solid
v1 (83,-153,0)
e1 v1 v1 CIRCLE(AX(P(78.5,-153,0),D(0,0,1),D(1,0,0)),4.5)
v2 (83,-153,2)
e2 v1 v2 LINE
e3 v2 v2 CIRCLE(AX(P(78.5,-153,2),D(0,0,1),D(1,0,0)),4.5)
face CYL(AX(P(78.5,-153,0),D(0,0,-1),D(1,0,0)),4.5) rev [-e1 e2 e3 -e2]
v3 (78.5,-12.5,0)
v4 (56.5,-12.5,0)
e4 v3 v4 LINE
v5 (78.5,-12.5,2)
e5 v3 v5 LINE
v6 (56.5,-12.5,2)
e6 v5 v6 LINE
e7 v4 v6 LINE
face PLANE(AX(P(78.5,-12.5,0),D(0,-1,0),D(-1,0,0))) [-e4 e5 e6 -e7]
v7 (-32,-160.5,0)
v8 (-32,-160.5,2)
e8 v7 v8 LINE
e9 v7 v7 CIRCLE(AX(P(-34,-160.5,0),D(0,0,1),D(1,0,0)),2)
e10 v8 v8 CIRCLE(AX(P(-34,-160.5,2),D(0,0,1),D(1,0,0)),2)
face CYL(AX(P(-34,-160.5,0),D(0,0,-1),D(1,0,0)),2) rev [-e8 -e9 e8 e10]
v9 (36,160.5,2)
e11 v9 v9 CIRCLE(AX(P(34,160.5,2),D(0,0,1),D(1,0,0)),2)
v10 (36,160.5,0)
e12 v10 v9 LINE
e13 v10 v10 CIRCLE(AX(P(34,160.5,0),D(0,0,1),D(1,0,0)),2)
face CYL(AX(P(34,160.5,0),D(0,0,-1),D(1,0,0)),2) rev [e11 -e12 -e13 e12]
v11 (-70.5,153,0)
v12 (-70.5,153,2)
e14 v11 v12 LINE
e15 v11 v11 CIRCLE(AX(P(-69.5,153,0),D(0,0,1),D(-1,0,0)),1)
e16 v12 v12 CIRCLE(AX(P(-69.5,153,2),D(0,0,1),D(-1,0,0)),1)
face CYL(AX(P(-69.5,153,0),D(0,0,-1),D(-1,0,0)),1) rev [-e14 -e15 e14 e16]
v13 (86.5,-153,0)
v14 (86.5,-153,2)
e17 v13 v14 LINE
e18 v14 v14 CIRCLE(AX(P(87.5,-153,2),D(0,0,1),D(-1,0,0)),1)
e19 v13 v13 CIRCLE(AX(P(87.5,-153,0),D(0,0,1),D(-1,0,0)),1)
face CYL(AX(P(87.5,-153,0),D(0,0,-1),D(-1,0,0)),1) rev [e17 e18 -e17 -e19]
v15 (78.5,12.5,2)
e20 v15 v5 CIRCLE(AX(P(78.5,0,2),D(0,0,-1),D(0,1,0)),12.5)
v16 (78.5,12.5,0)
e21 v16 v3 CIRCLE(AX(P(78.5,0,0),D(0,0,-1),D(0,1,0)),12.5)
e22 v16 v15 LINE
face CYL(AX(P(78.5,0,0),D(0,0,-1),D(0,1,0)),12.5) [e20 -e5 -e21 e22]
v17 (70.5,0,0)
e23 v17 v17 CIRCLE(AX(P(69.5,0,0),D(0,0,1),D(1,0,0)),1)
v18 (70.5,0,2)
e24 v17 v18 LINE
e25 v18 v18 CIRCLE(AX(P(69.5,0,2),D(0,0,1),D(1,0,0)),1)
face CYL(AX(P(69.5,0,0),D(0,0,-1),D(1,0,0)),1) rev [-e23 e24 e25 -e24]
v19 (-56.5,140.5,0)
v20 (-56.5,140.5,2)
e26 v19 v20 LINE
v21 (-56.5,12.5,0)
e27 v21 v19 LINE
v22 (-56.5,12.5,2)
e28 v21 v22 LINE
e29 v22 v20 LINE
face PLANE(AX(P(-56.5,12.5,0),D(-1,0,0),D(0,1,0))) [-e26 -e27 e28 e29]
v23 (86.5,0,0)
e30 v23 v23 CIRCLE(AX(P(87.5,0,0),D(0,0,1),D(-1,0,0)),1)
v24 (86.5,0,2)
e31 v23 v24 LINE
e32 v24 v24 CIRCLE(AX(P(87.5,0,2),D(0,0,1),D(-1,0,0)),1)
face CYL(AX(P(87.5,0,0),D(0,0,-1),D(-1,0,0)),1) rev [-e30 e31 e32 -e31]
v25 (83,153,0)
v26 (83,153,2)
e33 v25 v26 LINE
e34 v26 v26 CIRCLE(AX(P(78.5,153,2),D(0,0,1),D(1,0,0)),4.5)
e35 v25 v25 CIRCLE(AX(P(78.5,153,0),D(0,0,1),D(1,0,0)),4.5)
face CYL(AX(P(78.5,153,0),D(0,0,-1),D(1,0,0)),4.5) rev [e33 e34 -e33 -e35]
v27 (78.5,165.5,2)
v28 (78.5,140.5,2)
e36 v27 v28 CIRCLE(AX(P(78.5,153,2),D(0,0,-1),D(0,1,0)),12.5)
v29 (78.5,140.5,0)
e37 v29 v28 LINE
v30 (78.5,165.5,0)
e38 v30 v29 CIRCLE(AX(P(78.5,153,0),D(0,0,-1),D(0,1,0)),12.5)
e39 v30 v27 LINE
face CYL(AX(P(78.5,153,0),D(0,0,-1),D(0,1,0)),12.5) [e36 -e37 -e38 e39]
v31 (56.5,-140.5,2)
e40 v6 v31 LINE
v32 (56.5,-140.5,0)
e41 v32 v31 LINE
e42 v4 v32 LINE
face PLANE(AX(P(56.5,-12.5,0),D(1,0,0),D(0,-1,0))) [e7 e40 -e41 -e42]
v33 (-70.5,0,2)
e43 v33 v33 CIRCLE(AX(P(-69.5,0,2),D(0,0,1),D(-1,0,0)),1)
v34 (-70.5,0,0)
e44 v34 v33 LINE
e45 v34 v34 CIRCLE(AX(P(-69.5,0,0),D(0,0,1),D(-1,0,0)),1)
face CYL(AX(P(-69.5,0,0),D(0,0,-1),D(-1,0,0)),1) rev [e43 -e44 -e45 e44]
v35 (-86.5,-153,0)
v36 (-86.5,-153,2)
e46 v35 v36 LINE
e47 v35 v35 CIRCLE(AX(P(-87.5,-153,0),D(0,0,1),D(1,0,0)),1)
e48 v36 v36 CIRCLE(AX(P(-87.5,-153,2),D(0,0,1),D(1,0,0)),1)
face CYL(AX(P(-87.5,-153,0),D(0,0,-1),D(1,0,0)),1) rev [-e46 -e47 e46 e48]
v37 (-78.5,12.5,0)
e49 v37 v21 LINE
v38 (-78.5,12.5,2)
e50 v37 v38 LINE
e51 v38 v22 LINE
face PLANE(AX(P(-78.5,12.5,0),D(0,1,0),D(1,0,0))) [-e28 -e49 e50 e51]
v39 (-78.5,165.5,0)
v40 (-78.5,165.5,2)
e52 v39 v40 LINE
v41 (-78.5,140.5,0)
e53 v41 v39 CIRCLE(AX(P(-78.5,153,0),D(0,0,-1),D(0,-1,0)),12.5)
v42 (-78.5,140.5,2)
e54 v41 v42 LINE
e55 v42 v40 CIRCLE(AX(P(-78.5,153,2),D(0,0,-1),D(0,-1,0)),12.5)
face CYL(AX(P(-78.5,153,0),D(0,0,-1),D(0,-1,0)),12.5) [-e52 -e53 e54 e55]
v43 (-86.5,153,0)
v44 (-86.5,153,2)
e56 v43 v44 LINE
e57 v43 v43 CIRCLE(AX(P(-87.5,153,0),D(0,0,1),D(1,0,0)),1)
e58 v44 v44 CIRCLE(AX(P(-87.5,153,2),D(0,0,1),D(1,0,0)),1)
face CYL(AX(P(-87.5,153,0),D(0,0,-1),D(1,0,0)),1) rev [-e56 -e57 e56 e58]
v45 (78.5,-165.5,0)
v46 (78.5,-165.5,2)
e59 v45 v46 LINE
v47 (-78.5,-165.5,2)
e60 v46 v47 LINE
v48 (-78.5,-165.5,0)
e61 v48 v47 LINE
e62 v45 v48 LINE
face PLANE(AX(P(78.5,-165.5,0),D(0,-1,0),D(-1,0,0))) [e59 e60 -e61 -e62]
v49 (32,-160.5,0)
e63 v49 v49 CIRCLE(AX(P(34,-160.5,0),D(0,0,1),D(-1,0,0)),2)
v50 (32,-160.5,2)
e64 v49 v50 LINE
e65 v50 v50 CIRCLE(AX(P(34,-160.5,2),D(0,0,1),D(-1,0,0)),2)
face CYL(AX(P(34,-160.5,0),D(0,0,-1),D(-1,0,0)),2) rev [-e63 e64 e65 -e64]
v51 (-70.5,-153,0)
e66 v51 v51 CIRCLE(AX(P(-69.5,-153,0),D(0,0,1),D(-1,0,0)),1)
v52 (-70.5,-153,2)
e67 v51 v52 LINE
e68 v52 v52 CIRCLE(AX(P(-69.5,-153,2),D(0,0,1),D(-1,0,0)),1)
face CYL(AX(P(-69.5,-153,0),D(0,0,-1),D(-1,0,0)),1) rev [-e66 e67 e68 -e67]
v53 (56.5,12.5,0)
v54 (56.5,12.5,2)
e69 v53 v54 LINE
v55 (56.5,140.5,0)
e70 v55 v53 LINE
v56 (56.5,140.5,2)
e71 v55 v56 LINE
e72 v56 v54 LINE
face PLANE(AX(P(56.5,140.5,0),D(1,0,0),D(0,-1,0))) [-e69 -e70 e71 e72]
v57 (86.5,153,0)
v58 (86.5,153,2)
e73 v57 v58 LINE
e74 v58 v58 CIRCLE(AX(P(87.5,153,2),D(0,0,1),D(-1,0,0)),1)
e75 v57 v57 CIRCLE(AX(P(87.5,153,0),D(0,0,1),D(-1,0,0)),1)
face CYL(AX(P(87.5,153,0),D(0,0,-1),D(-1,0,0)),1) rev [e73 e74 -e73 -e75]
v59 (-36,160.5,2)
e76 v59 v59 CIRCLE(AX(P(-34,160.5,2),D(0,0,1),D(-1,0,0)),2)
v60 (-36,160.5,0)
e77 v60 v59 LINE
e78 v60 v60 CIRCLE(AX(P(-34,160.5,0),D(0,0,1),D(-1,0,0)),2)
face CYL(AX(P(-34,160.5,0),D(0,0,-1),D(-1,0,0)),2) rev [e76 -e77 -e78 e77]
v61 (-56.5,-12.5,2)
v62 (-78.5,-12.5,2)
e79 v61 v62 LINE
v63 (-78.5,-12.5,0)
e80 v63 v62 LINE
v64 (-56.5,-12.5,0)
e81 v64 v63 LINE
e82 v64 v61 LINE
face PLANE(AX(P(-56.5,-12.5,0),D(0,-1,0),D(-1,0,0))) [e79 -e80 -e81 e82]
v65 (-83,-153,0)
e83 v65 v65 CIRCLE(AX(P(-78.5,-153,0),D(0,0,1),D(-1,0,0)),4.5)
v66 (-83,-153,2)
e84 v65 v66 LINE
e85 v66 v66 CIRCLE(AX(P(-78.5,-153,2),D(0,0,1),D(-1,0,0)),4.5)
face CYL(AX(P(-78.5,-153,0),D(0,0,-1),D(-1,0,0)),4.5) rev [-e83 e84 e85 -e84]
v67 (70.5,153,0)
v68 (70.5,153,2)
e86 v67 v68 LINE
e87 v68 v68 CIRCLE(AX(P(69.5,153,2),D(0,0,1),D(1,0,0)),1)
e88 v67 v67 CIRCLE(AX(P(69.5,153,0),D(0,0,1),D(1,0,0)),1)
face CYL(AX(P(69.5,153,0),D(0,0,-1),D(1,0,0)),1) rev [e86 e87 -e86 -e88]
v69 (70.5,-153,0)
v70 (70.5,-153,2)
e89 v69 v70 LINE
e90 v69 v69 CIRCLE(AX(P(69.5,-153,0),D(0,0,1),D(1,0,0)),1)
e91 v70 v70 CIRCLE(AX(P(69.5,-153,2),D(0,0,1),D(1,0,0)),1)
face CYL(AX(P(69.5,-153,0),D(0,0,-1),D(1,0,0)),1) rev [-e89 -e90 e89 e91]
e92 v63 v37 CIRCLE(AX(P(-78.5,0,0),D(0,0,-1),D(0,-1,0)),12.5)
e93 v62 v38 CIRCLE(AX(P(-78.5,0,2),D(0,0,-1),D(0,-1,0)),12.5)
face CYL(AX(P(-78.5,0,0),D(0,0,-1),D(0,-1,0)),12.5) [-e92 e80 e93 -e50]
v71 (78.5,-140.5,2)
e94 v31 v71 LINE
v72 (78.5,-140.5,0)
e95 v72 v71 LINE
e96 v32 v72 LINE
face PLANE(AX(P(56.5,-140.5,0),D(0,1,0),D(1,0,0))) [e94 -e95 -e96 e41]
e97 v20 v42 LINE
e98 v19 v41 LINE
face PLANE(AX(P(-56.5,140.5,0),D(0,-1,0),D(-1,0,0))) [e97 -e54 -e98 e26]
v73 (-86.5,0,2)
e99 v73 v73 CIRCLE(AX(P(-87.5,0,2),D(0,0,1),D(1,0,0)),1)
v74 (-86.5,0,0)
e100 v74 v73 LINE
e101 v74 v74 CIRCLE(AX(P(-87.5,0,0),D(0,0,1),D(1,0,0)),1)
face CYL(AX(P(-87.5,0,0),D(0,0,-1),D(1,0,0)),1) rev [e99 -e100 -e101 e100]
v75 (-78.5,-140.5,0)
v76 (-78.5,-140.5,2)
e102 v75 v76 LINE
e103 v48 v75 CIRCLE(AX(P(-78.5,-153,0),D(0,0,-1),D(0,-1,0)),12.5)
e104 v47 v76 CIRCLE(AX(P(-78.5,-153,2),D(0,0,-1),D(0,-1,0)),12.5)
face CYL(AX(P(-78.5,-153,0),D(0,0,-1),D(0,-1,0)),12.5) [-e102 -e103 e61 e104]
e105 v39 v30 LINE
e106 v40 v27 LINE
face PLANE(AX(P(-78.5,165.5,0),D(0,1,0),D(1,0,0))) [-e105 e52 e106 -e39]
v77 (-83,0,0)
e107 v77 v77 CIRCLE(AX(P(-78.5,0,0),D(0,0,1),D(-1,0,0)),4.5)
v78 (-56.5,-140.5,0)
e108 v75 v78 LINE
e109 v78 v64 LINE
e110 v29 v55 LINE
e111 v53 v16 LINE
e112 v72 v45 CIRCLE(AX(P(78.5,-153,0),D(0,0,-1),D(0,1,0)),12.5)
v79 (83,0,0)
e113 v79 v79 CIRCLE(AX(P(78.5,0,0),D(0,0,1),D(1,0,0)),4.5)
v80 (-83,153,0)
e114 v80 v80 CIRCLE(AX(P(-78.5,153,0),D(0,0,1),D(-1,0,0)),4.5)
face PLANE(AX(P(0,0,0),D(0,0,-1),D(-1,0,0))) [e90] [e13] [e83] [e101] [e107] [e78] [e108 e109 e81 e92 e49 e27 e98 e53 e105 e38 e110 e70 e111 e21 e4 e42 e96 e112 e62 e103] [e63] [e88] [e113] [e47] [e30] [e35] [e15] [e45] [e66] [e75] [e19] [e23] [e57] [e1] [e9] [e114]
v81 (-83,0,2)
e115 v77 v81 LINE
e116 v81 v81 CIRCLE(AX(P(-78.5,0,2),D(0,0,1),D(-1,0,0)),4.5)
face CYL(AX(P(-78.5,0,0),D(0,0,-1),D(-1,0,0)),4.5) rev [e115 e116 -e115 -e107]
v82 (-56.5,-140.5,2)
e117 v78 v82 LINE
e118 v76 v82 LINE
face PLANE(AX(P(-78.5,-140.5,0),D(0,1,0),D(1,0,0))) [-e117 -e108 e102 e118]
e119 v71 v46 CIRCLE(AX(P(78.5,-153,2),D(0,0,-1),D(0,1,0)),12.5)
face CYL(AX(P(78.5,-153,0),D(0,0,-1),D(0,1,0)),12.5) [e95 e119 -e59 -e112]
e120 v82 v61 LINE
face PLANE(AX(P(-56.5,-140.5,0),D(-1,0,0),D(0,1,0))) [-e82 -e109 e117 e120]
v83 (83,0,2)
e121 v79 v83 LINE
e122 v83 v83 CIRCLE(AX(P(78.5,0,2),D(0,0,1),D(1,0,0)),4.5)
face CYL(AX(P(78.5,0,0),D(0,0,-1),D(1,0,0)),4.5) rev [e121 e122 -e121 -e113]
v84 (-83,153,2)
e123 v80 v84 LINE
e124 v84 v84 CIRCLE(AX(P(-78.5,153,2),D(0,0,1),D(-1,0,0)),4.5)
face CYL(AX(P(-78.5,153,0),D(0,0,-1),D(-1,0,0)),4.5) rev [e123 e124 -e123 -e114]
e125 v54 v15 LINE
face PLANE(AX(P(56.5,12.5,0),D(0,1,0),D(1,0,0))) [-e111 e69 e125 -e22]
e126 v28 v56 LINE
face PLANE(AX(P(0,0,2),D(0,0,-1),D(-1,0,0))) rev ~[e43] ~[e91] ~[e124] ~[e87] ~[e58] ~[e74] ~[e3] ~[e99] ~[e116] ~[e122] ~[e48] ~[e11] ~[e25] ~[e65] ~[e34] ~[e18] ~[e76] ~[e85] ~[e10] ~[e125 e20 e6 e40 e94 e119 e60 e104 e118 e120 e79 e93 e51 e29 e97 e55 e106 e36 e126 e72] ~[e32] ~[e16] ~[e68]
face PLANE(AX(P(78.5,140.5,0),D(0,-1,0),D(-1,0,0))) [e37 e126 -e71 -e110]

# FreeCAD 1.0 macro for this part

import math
import FreeCAD as App
import Part
import Sketcher

doc = App.newDocument("Part")
body = doc.addObject("PartDesign::Body", "Body")

# Sketch on XY plane
sketch1 = body.newObject("Sketcher::SketchObject", "Sketch")
sketch1.AttachmentSupport = (doc.getObject("XY_Plane"), [""])
sketch1.MapMode = "FlatFace"
sketch1.addGeometry([
    Part.LineSegment(App.Vector(78.5, 165.5, 0), App.Vector(-78.5, 165.5, 0)),  # 0
    Part.ArcOfCircle(Part.Circle(App.Vector(-78.5, 153, 0), App.Vector(0, 0, 1), 12.5), math.radians(90), math.radians(270)),  # 1
    Part.LineSegment(App.Vector(-78.5, 140.5, 0), App.Vector(-56.5, 140.5, 0)),  # 2
    Part.LineSegment(App.Vector(-56.5, 140.5, 0), App.Vector(-56.5, 12.5, 0)),  # 3
    Part.LineSegment(App.Vector(-56.5, 12.5, 0), App.Vector(-78.5, 12.5, 0)),  # 4
    Part.ArcOfCircle(Part.Circle(App.Vector(-78.5, 0, 0), App.Vector(0, 0, 1), 12.5), math.radians(90), math.radians(270)),  # 5
    Part.LineSegment(App.Vector(-78.5, -12.5, 0), App.Vector(-56.5, -12.5, 0)),  # 6
    Part.LineSegment(App.Vector(-56.5, -12.5, 0), App.Vector(-56.5, -140.5, 0)),  # 7
    Part.LineSegment(App.Vector(-56.5, -140.5, 0), App.Vector(-78.5, -140.5, 0)),  # 8
    Part.ArcOfCircle(Part.Circle(App.Vector(-78.5, -153, 0), App.Vector(0, 0, 1), 12.5), math.radians(90), math.radians(270)),  # 9
    Part.LineSegment(App.Vector(-78.5, -165.5, 0), App.Vector(78.5, -165.5, 0)),  # 10
    Part.ArcOfCircle(Part.Circle(App.Vector(78.5, -153, 0), App.Vector(0, 0, 1), 12.5), math.radians(-90), math.radians(90)),  # 11
    Part.LineSegment(App.Vector(78.5, -140.5, 0), App.Vector(56.5, -140.5, 0)),  # 12
    Part.LineSegment(App.Vector(56.5, -140.5, 0), App.Vector(56.5, -12.5, 0)),  # 13
    Part.LineSegment(App.Vector(56.5, -12.5, 0), App.Vector(78.5, -12.5, 0)),  # 14
    Part.ArcOfCircle(Part.Circle(App.Vector(78.5, 0, 0), App.Vector(0, 0, 1), 12.5), math.radians(-90), math.radians(90)),  # 15
    Part.LineSegment(App.Vector(78.5, 12.5, 0), App.Vector(56.5, 12.5, 0)),  # 16
    Part.LineSegment(App.Vector(56.5, 12.5, 0), App.Vector(56.5, 140.5, 0)),  # 17
    Part.LineSegment(App.Vector(56.5, 140.5, 0), App.Vector(78.5, 140.5, 0)),  # 18
    Part.ArcOfCircle(Part.Circle(App.Vector(78.5, 153, 0), App.Vector(0, 0, 1), 12.5), math.radians(-90), math.radians(90)),  # 19
    Part.Circle(App.Vector(87.5, -153, 0), App.Vector(0, 0, 1), 1),  # 20
    Part.Circle(App.Vector(78.5, -153, 0), App.Vector(0, 0, 1), 4.5),  # 21
    Part.Circle(App.Vector(69.5, -153, 0), App.Vector(0, 0, 1), 1),  # 22
    Part.Circle(App.Vector(34, -160.5, 0), App.Vector(0, 0, 1), 2),  # 23
    Part.Circle(App.Vector(-34, -160.5, 0), App.Vector(0, 0, 1), 2),  # 24
    Part.Circle(App.Vector(-69.5, -153, 0), App.Vector(0, 0, 1), 1),  # 25
    Part.Circle(App.Vector(-78.5, -153, 0), App.Vector(0, 0, 1), 4.5),  # 26
    Part.Circle(App.Vector(-87.5, -153, 0), App.Vector(0, 0, 1), 1),  # 27
    Part.Circle(App.Vector(87.5, 0, 0), App.Vector(0, 0, 1), 1),  # 28
    Part.Circle(App.Vector(78.5, 0, 0), App.Vector(0, 0, 1), 4.5),  # 29
    Part.Circle(App.Vector(69.5, 0, 0), App.Vector(0, 0, 1), 1),  # 30
    Part.Circle(App.Vector(87.5, 153, 0), App.Vector(0, 0, 1), 1),  # 31
    Part.Circle(App.Vector(78.5, 153, 0), App.Vector(0, 0, 1), 4.5),  # 32
    Part.Circle(App.Vector(69.5, 153, 0), App.Vector(0, 0, 1), 1),  # 33
    Part.Circle(App.Vector(34, 160.5, 0), App.Vector(0, 0, 1), 2),  # 34
    Part.Circle(App.Vector(-69.5, 0, 0), App.Vector(0, 0, 1), 1),  # 35
    Part.Circle(App.Vector(-78.5, 0, 0), App.Vector(0, 0, 1), 4.5),  # 36
    Part.Circle(App.Vector(-87.5, 0, 0), App.Vector(0, 0, 1), 1),  # 37
    Part.Circle(App.Vector(-34, 160.5, 0), App.Vector(0, 0, 1), 2),  # 38
    Part.Circle(App.Vector(-69.5, 153, 0), App.Vector(0, 0, 1), 1),  # 39
    Part.Circle(App.Vector(-78.5, 153, 0), App.Vector(0, 0, 1), 4.5),  # 40
    Part.Circle(App.Vector(-87.5, 153, 0), App.Vector(0, 0, 1), 1),  # 41
], False)
sketch1.addConstraint([
    Sketcher.Constraint("Tangent", 0, 2, 1, 1),
    Sketcher.Constraint("Tangent", 1, 2, 2, 1),
    Sketcher.Constraint("Coincident", 2, 2, 3, 1),
    Sketcher.Constraint("Coincident", 3, 2, 4, 1),
    Sketcher.Constraint("Tangent", 4, 2, 5, 1),
    Sketcher.Constraint("Tangent", 5, 2, 6, 1),
    Sketcher.Constraint("Coincident", 6, 2, 7, 1),
    Sketcher.Constraint("Coincident", 7, 2, 8, 1),
    Sketcher.Constraint("Tangent", 8, 2, 9, 1),
    Sketcher.Constraint("Tangent", 9, 2, 10, 1),
    Sketcher.Constraint("Tangent", 10, 2, 11, 1),
    Sketcher.Constraint("Tangent", 11, 2, 12, 1),
    Sketcher.Constraint("Coincident", 12, 2, 13, 1),
    Sketcher.Constraint("Coincident", 13, 2, 14, 1),
    Sketcher.Constraint("Tangent", 14, 2, 15, 1),
    Sketcher.Constraint("Tangent", 15, 2, 16, 1),
    Sketcher.Constraint("Coincident", 16, 2, 17, 1),
    Sketcher.Constraint("Coincident", 17, 2, 18, 1),
    Sketcher.Constraint("Tangent", 18, 2, 19, 1),
    Sketcher.Constraint("Tangent", 19, 2, 0, 1),
    Sketcher.Constraint("Horizontal", 0),
    Sketcher.Constraint("Horizontal", 2),
    Sketcher.Constraint("Vertical", 3),
    Sketcher.Constraint("Horizontal", 4),
    Sketcher.Constraint("Horizontal", 6),
    Sketcher.Constraint("Vertical", 7),
    Sketcher.Constraint("Horizontal", 8),
    Sketcher.Constraint("Horizontal", 10),
    Sketcher.Constraint("Horizontal", 12),
    Sketcher.Constraint("Vertical", 13),
    Sketcher.Constraint("Horizontal", 14),
    Sketcher.Constraint("Horizontal", 16),
    Sketcher.Constraint("Vertical", 17),
    Sketcher.Constraint("Horizontal", 18),
    Sketcher.Constraint("Coincident", 21, 3, 11, 3),
    Sketcher.Constraint("Coincident", 26, 3, 9, 3),
    Sketcher.Constraint("Coincident", 29, 3, 15, 3),
    Sketcher.Constraint("Coincident", 32, 3, 19, 3),
    Sketcher.Constraint("Coincident", 36, 3, 5, 3),
    Sketcher.Constraint("Coincident", 40, 3, 1, 3),
    Sketcher.Constraint("Equal", 1, 5),
    Sketcher.Constraint("Equal", 5, 9),
    Sketcher.Constraint("Equal", 9, 11),
    Sketcher.Constraint("Equal", 11, 15),
    Sketcher.Constraint("Equal", 15, 19),
    Sketcher.Constraint("Equal", 20, 22),
    Sketcher.Constraint("Equal", 23, 24),
    Sketcher.Constraint("Equal", 22, 25),
    Sketcher.Constraint("Equal", 21, 26),
    Sketcher.Constraint("Equal", 25, 27),
    Sketcher.Constraint("Equal", 27, 28),
    Sketcher.Constraint("Equal", 26, 29),
    Sketcher.Constraint("Equal", 28, 30),
    Sketcher.Constraint("Equal", 30, 31),
    Sketcher.Constraint("Equal", 29, 32),
    Sketcher.Constraint("Equal", 31, 33),
    Sketcher.Constraint("Equal", 24, 34),
    Sketcher.Constraint("Equal", 33, 35),
    Sketcher.Constraint("Equal", 32, 36),
    Sketcher.Constraint("Equal", 35, 37),
    Sketcher.Constraint("Equal", 34, 38),
    Sketcher.Constraint("Equal", 37, 39),
    Sketcher.Constraint("Equal", 36, 40),
    Sketcher.Constraint("Equal", 39, 41),
    Sketcher.Constraint("Symmetric", 1, 3, 11, 3, -1, 1),
    Sketcher.Constraint("Symmetric", 5, 3, 15, 3, -1, 1),
    Sketcher.Constraint("Symmetric", 27, 3, 31, 3, -1, 1),
    Sketcher.Constraint("Symmetric", 25, 3, 33, 3, -1, 1),
    Sketcher.Constraint("Symmetric", 24, 3, 34, 3, -1, 1),
    Sketcher.Constraint("Symmetric", 30, 3, 35, 3, -1, 1),
    Sketcher.Constraint("Symmetric", 28, 3, 37, 3, -1, 1),
    Sketcher.Constraint("Symmetric", 23, 3, 38, 3, -1, 1),
    Sketcher.Constraint("Symmetric", 22, 3, 39, 3, -1, 1),
    Sketcher.Constraint("Symmetric", 20, 3, 41, 3, -1, 1),
    Sketcher.Constraint("Symmetric", 23, 3, 24, 3, -2),
    Sketcher.Constraint("Symmetric", 22, 3, 25, 3, -2),
    Sketcher.Constraint("Symmetric", 20, 3, 27, 3, -2),
    Sketcher.Constraint("Symmetric", 6, 2, 13, 2, -2),
    Sketcher.Constraint("PointOnObject", 28, 3, -1),
    Sketcher.Constraint("PointOnObject", 30, 3, -1),
    Sketcher.Constraint("Horizontal", 11, 3, 20, 3),
    Sketcher.Constraint("Horizontal", 21, 3, 22, 3),
    Sketcher.Constraint("Vertical", 1, 3, 5, 3),
    Sketcher.Constraint("Vertical", 5, 3, 9, 3),
    Sketcher.Constraint("Vertical", 15, 3, 19, 3),
    Sketcher.Constraint("Vertical", 20, 3, 28, 3),
    Sketcher.Constraint("Vertical", 22, 3, 30, 3),
    Sketcher.Constraint("Vertical", 3, 2, 6, 2),
    Sketcher.Constraint("Vertical", 13, 2, 16, 2),
    Sketcher.Constraint("Diameter", 20, 2.0),
    Sketcher.Constraint("Diameter", 21, 9.0),
    Sketcher.Constraint("Diameter", 23, 4.0),
    Sketcher.Constraint("Radius", 1, 12.5),
    Sketcher.Constraint("DistanceX", 0, 2, 0, 1, 157.0),
    Sketcher.Constraint("DistanceX", 2, 1, 2, 2, 22.0),
    Sketcher.Constraint("DistanceY", 3, 2, 3, 1, 128.0),
    Sketcher.Constraint("DistanceX", -1, 1, 23, 3, 34.0),
    Sketcher.Constraint("DistanceX", 11, 3, 20, 3, 9.0),
    Sketcher.Constraint("DistanceX", 22, 3, 11, 3, 9.0),
    Sketcher.Constraint("DistanceY", 38, 3, 0, 2, 5.0),
])
pad1 = body.newObject("PartDesign::Pad", "Pad")
pad1.Profile = sketch1
pad1.Length = 2

doc.recompute()
